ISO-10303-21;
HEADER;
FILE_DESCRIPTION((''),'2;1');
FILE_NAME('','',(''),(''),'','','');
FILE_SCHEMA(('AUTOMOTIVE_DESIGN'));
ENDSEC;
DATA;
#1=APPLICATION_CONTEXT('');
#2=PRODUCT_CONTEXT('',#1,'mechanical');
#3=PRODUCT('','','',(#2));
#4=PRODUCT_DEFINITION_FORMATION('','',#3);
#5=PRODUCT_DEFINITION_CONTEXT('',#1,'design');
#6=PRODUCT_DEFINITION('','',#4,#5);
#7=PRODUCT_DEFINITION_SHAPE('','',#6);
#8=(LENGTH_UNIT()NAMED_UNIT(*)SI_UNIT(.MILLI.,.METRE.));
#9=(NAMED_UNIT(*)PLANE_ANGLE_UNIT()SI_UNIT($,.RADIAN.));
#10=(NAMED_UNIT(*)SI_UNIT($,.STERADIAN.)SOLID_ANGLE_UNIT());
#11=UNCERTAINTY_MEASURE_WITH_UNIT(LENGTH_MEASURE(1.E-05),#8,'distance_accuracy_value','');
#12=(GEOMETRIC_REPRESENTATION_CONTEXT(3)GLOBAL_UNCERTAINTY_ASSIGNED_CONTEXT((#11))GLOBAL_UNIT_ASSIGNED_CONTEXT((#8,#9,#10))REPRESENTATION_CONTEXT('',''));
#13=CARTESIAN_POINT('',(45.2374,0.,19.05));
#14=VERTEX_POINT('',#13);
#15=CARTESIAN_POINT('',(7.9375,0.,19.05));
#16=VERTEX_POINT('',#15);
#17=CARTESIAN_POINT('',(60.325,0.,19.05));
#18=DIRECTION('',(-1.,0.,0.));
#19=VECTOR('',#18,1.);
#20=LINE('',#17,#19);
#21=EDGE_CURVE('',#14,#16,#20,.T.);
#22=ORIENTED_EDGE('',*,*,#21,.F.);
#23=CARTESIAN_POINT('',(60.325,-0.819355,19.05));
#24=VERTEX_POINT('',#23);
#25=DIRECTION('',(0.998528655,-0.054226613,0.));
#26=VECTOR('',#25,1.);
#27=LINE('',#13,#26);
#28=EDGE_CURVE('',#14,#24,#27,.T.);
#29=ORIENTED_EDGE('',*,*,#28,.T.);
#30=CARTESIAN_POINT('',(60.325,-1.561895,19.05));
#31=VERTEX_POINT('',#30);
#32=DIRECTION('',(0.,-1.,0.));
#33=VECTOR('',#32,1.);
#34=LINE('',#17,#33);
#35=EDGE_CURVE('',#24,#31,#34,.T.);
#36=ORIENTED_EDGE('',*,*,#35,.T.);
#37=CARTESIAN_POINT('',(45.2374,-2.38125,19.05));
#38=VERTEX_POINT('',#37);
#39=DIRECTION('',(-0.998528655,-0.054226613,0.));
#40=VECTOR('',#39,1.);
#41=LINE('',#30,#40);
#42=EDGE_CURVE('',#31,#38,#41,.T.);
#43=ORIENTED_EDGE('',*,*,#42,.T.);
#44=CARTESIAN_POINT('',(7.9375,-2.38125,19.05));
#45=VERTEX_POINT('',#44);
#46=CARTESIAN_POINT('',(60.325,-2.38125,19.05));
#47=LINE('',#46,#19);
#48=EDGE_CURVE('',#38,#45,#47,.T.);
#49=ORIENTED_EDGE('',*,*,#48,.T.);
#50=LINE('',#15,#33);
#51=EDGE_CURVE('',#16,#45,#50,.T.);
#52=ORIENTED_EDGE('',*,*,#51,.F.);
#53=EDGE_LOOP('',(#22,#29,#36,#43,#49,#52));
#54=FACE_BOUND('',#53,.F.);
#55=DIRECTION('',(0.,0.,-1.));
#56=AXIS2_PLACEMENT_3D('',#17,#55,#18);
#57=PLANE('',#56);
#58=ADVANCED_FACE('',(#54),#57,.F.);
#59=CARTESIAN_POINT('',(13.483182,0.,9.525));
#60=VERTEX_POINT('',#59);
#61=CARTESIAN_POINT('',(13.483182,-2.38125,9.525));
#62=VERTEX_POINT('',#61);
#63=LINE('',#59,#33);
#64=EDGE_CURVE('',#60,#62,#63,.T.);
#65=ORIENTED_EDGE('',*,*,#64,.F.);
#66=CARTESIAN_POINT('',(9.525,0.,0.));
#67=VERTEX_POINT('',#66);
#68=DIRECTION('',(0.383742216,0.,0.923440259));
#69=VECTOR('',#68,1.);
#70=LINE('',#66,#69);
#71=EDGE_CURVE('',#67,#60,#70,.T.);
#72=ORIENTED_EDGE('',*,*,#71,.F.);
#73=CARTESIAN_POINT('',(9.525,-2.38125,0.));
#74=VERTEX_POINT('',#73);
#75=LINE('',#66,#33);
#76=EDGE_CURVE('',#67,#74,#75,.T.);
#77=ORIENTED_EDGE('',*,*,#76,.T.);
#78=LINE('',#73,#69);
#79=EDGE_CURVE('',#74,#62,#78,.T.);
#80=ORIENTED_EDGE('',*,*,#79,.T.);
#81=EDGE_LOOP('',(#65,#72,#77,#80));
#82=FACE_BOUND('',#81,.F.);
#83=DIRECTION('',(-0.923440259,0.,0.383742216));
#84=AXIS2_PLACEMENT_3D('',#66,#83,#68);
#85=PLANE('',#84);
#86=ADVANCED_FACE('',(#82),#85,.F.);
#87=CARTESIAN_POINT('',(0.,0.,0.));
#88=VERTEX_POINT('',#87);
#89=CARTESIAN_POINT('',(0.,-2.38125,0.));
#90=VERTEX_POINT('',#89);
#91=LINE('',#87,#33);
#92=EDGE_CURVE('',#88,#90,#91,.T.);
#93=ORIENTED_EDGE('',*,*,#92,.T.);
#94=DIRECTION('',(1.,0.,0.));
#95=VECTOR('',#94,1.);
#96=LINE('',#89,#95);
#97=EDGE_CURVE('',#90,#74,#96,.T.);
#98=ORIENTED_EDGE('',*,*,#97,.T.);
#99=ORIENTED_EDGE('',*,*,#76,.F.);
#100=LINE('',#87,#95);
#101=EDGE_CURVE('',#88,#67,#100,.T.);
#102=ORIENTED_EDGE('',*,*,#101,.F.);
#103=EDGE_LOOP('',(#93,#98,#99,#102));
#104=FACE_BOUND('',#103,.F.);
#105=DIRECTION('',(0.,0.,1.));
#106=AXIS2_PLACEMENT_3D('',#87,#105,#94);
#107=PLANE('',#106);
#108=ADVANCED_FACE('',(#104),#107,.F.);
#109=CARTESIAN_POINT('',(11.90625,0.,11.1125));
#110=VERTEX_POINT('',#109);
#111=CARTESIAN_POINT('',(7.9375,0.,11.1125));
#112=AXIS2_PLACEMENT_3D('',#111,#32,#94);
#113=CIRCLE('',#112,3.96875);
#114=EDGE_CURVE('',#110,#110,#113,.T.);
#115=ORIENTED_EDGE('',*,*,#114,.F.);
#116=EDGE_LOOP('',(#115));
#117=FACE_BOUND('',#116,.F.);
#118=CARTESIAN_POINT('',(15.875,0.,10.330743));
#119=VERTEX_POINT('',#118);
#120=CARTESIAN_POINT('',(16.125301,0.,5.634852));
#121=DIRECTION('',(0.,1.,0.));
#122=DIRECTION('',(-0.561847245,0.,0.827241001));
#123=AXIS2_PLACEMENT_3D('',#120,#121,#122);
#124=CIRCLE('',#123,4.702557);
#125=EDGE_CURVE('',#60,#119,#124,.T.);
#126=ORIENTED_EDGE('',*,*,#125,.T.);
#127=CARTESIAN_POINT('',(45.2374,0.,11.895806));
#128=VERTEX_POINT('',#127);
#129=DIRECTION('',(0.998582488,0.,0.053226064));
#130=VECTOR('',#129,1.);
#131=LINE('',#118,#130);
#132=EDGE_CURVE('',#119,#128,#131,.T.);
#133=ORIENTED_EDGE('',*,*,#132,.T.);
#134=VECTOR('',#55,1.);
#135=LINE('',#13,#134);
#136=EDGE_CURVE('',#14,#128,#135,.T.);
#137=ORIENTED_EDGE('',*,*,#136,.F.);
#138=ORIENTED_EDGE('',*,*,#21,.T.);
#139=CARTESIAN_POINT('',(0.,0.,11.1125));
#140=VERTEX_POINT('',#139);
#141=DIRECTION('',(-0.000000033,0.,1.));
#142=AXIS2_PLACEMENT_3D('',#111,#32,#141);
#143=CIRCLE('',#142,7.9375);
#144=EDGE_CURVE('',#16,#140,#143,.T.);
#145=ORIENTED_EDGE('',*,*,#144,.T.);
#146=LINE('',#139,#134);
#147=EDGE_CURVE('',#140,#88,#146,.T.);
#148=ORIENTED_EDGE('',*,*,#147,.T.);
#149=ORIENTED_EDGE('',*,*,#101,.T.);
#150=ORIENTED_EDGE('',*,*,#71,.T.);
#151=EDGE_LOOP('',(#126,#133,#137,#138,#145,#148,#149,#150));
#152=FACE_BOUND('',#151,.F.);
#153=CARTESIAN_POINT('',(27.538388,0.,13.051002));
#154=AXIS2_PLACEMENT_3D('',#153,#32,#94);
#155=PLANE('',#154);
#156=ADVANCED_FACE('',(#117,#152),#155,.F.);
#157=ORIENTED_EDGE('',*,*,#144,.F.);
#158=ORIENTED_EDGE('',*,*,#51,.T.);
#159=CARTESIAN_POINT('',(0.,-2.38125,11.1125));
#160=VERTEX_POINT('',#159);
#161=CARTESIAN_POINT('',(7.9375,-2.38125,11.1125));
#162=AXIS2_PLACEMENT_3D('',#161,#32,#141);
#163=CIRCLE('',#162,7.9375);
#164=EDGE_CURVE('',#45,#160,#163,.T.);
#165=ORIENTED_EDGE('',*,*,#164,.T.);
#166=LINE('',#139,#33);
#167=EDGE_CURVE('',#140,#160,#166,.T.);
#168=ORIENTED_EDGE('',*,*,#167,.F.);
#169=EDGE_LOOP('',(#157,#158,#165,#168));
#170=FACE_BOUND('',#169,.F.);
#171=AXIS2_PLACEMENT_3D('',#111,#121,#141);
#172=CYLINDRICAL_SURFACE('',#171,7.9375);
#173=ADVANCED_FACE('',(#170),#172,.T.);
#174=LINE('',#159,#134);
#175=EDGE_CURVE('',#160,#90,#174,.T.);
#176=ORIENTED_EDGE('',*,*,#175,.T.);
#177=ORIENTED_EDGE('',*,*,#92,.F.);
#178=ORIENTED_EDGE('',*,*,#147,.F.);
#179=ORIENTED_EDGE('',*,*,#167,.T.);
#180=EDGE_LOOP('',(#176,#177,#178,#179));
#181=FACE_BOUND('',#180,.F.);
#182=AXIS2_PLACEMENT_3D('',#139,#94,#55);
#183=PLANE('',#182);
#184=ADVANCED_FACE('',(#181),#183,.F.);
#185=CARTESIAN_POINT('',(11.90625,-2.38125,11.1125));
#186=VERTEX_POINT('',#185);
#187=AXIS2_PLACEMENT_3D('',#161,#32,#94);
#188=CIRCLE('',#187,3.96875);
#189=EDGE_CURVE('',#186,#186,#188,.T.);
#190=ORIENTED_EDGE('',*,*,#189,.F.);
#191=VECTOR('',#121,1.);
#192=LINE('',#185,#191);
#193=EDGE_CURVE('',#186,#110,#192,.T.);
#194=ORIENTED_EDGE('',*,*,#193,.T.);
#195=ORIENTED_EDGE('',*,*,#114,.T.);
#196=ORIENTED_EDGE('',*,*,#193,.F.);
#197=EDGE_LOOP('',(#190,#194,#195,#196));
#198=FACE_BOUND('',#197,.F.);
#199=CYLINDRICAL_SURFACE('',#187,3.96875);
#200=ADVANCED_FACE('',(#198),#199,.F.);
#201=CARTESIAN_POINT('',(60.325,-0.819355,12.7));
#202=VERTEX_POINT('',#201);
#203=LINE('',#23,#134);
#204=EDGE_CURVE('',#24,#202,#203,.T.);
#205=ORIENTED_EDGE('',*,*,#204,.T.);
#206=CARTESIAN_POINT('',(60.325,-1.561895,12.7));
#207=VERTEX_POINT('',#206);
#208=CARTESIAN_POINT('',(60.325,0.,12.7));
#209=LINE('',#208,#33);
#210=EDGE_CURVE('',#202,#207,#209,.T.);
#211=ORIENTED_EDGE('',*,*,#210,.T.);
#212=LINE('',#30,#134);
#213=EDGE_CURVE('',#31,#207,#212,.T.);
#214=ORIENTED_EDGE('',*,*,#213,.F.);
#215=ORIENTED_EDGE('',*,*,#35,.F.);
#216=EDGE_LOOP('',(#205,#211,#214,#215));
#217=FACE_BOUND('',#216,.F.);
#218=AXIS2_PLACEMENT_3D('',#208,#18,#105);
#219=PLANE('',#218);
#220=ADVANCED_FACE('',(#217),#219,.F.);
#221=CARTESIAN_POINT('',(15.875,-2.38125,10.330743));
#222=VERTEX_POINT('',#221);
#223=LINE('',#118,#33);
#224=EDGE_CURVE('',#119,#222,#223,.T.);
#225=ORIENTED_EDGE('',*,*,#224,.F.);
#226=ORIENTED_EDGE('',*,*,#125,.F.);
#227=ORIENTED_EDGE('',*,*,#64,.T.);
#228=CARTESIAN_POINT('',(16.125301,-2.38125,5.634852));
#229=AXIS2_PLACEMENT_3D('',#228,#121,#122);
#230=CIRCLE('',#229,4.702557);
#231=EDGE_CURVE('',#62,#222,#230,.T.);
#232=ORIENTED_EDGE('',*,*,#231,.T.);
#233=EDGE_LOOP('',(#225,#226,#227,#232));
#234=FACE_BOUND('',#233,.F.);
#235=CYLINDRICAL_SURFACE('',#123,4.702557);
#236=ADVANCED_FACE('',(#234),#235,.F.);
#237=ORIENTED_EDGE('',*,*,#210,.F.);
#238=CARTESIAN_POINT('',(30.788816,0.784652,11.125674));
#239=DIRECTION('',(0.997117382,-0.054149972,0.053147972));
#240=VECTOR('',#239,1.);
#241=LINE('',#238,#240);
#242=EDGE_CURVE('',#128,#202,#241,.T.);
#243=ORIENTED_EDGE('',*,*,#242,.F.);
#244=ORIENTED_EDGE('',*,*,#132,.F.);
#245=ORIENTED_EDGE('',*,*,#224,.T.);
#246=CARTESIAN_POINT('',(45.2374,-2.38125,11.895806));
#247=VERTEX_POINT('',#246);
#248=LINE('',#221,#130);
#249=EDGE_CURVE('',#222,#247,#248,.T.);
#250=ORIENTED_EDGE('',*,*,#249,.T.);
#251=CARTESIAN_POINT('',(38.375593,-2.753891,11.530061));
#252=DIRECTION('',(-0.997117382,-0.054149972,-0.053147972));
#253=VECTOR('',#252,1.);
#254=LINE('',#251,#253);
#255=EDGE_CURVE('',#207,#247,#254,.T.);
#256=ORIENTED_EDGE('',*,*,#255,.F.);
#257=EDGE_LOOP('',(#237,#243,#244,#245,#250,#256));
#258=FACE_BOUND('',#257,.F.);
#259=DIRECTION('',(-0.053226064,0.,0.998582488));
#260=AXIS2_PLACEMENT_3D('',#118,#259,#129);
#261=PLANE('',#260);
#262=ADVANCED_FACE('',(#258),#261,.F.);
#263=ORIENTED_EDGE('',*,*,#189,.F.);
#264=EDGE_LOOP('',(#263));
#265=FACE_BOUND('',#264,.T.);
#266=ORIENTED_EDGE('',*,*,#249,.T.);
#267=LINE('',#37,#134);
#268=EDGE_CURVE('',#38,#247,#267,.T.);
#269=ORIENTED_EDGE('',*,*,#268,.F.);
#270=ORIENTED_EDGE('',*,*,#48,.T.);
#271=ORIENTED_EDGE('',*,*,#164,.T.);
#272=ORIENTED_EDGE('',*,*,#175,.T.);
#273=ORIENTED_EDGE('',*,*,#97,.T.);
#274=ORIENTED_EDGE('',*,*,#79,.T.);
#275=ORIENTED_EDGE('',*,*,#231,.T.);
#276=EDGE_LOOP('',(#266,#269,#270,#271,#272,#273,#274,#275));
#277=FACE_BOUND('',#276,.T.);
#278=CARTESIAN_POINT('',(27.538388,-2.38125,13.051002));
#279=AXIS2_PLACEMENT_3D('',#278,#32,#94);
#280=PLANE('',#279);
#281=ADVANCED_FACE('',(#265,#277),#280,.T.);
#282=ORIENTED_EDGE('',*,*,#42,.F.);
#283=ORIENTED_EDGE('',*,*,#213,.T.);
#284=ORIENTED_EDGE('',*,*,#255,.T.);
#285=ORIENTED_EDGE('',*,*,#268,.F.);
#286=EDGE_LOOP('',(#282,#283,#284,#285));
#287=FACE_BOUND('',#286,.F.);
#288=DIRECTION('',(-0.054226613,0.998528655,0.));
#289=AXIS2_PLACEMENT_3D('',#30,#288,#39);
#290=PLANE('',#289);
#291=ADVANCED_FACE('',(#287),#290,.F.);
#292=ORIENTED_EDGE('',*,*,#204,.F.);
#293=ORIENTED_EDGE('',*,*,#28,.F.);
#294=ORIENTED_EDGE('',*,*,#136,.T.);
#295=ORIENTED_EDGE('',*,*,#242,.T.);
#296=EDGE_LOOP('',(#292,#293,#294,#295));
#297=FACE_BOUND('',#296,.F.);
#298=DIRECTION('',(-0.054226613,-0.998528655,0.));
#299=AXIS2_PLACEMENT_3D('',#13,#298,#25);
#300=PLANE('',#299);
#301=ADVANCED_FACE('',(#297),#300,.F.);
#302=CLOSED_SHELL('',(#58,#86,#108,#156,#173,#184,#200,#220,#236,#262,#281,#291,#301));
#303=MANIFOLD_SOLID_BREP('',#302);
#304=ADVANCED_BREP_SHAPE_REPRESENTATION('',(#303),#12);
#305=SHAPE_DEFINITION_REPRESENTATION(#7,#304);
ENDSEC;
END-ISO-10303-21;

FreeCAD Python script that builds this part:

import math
import FreeCAD as App
import Part
import Sketcher
Q = App.Units.Quantity


def add_polygon(sketch, points):
    """Adds a closed chain of lines whose ends are joined by coincident constraints."""
    first, n = sketch.GeometryCount, len(points)
    for a, b in zip(points, points[1:] + points[:1]):
        sketch.addGeometry(Part.LineSegment(App.Vector(*a, 0), App.Vector(*b, 0)), False)
    for i in range(n):
        sketch.addConstraint(Sketcher.Constraint("Coincident", first + i, 2, first + (i + 1) % n, 1))

doc = App.newDocument("Part")
body = doc.addObject("PartDesign::Body", "Body")

sketch1 = body.newObject("Sketcher::SketchObject", "Sketch")
sketch1.AttachmentSupport = (doc.getObject("XZ_Plane"), [""])
sketch1.MapMode = "FlatFace"
sketch1.addGeometry(Part.LineSegment(App.Vector(60.325, 19.05, 0), App.Vector(7.9375, 19.05, 0)), False)
sketch1.addGeometry(Part.ArcOfCircle(Part.Circle(App.Vector(7.9375, 11.1125, 0), App.Vector(0, 0, 1), 7.9375), math.radians(90.000002), math.radians(179.999998)), False)
sketch1.addGeometry(Part.LineSegment(App.Vector(0, 11.1125, 0), App.Vector(0, 0, 0)), False)
sketch1.addGeometry(Part.LineSegment(App.Vector(0, 0, 0), App.Vector(9.525, 0, 0)), False)
sketch1.addGeometry(Part.LineSegment(App.Vector(9.525, 0, 0), App.Vector(13.483182, 9.525, 0)), False)
sketch1.addGeometry(Part.ArcOfCircle(Part.Circle(App.Vector(16.125301, 5.634852, 0), App.Vector(0, 0, 1), 4.702557), math.radians(93.051096), math.radians(124.183644)), False)
sketch1.addGeometry(Part.LineSegment(App.Vector(15.875, 10.330743, 0), App.Vector(60.325, 12.7, 0)), False)
sketch1.addGeometry(Part.LineSegment(App.Vector(60.325, 12.7, 0), App.Vector(60.325, 19.05, 0)), False)
sketch1.addConstraint(Sketcher.Constraint("Coincident", 0, 2, 1, 1))
sketch1.addConstraint(Sketcher.Constraint("Coincident", 1, 2, 2, 1))
sketch1.addConstraint(Sketcher.Constraint("Coincident", 2, 2, 3, 1))
sketch1.addConstraint(Sketcher.Constraint("Coincident", 3, 2, 4, 1))
sketch1.addConstraint(Sketcher.Constraint("Coincident", 4, 2, 5, 2))
sketch1.addConstraint(Sketcher.Constraint("Coincident", 5, 1, 6, 1))
sketch1.addConstraint(Sketcher.Constraint("Coincident", 6, 2, 7, 1))
sketch1.addConstraint(Sketcher.Constraint("Coincident", 7, 2, 0, 1))
sketch1.addConstraint(Sketcher.Constraint("Horizontal", 0))
sketch1.addConstraint(Sketcher.Constraint("Vertical", 2))
sketch1.addConstraint(Sketcher.Constraint("Horizontal", 3))
sketch1.addConstraint(Sketcher.Constraint("Vertical", 7))
sketch1.addConstraint(Sketcher.Constraint("Coincident", 2, 2, -1, 1))
sketch1.addConstraint(Sketcher.Constraint("Radius", 1, Q("0.3125 in")))
sketch1.addConstraint(Sketcher.Constraint("DistanceX", 3, 2, 6, 2, Q("2 in")))
sketch1.addConstraint(Sketcher.Constraint("DistanceY", 7, 1, 7, 2, Q("0.25 in")))
sketch1.addConstraint(Sketcher.Constraint("DistanceY", -1, 1, 6, 2, Q("0.5 in")))
sketch1.addConstraint(Sketcher.Constraint("DistanceX", 0, 2, 0, 1, Q("2.0625 in")))
sketch1.addConstraint(Sketcher.Constraint("DistanceX", 3, 1, 3, 2, Q("0.375 in")))
sketch1.addConstraint(Sketcher.Constraint("DistanceY", 2, 2, 2, 1, Q("0.4375 in")))
sketch1.addConstraint(Sketcher.Constraint("DistanceX", 3, 2, 5, 1, Q("0.25 in")))
sketch1.addConstraint(Sketcher.Constraint("DistanceY", -1, 1, 4, 2, Q("0.375 in")))
sketch1.addConstraint(Sketcher.Constraint("Radius", 5, 4.702557))
sketch1.addConstraint(Sketcher.Constraint("DistanceX", -1, 1, 5, 3, 16.125301))
sketch1.addConstraint(Sketcher.Constraint("Distance", 4, 10.31469))
pad1 = body.newObject("PartDesign::Pad", "Pad")
pad1.Profile = sketch1
pad1.Length = Q("0.09375 in")

sketch2 = body.newObject("Sketcher::SketchObject", "Sketch001")
sketch2.AttachmentSupport = (doc.getObject("XZ_Plane"), [""])
sketch2.MapMode = "FlatFace"
sketch2.AttachmentOffset = App.Placement(App.Vector(0, 0, 0.09375 * 25.4), App.Rotation())
sketch2.addGeometry(Part.Circle(App.Vector(7.9375, 11.1125, 0), App.Vector(0, 0, 1), 3.96875), False)
sketch2.addConstraint(Sketcher.Constraint("Diameter", 0, Q("0.3125 in")))
sketch2.addConstraint(Sketcher.Constraint("DistanceX", -1, 1, 0, 3, Q("0.3125 in")))
sketch2.addConstraint(Sketcher.Constraint("DistanceY", -1, 1, 0, 3, Q("0.4375 in")))
pocket1 = body.newObject("PartDesign::Pocket", "Pocket")
pocket1.Profile = sketch2
pocket1.Length = Q("1 in")

sketch3 = body.newObject("Sketcher::SketchObject", "Sketch002")
sketch3.AttachmentSupport = (doc.getObject("XY_Plane"), [""])
sketch3.MapMode = "FlatFace"
sketch3.AttachmentOffset = App.Placement(App.Vector(0, 0, 0.75 * 25.4), App.Rotation())
add_polygon(sketch3, [(60.325, 0), (45.2374, 0), (60.325, -0.819355)])
add_polygon(sketch3, [(60.325, -2.38125), (60.325, -1.561895), (45.2374, -2.38125)])
sketch3.addConstraint(Sketcher.Constraint("Horizontal", 0))
sketch3.addConstraint(Sketcher.Constraint("Vertical", 2))
sketch3.addConstraint(Sketcher.Constraint("Vertical", 3))
sketch3.addConstraint(Sketcher.Constraint("Horizontal", 5))
sketch3.addConstraint(Sketcher.Constraint("PointOnObject", 0, 2, -1))
sketch3.addConstraint(Sketcher.Constraint("Vertical", 2, 2, 3, 2))
sketch3.addConstraint(Sketcher.Constraint("Vertical", 0, 2, 4, 2))
sketch3.addConstraint(Sketcher.Constraint("Equal", 2, 3))
sketch3.addConstraint(Sketcher.Constraint("DistanceX", 0, 2, 0, 1, Q("0.594 in")))
sketch3.addConstraint(Sketcher.Constraint("DistanceX", -1, 1, 0, 2, Q("1.781 in")))
sketch3.addConstraint(Sketcher.Constraint("DistanceY", 4, 2, -1, 1, Q("0.09375 in")))
sketch3.addConstraint(Sketcher.Constraint("Distance", 1, 15.109832))
pocket2 = body.newObject("PartDesign::Pocket", "Pocket001")
pocket2.Profile = sketch3
pocket2.Length = Q("1 in")

doc.recompute()
